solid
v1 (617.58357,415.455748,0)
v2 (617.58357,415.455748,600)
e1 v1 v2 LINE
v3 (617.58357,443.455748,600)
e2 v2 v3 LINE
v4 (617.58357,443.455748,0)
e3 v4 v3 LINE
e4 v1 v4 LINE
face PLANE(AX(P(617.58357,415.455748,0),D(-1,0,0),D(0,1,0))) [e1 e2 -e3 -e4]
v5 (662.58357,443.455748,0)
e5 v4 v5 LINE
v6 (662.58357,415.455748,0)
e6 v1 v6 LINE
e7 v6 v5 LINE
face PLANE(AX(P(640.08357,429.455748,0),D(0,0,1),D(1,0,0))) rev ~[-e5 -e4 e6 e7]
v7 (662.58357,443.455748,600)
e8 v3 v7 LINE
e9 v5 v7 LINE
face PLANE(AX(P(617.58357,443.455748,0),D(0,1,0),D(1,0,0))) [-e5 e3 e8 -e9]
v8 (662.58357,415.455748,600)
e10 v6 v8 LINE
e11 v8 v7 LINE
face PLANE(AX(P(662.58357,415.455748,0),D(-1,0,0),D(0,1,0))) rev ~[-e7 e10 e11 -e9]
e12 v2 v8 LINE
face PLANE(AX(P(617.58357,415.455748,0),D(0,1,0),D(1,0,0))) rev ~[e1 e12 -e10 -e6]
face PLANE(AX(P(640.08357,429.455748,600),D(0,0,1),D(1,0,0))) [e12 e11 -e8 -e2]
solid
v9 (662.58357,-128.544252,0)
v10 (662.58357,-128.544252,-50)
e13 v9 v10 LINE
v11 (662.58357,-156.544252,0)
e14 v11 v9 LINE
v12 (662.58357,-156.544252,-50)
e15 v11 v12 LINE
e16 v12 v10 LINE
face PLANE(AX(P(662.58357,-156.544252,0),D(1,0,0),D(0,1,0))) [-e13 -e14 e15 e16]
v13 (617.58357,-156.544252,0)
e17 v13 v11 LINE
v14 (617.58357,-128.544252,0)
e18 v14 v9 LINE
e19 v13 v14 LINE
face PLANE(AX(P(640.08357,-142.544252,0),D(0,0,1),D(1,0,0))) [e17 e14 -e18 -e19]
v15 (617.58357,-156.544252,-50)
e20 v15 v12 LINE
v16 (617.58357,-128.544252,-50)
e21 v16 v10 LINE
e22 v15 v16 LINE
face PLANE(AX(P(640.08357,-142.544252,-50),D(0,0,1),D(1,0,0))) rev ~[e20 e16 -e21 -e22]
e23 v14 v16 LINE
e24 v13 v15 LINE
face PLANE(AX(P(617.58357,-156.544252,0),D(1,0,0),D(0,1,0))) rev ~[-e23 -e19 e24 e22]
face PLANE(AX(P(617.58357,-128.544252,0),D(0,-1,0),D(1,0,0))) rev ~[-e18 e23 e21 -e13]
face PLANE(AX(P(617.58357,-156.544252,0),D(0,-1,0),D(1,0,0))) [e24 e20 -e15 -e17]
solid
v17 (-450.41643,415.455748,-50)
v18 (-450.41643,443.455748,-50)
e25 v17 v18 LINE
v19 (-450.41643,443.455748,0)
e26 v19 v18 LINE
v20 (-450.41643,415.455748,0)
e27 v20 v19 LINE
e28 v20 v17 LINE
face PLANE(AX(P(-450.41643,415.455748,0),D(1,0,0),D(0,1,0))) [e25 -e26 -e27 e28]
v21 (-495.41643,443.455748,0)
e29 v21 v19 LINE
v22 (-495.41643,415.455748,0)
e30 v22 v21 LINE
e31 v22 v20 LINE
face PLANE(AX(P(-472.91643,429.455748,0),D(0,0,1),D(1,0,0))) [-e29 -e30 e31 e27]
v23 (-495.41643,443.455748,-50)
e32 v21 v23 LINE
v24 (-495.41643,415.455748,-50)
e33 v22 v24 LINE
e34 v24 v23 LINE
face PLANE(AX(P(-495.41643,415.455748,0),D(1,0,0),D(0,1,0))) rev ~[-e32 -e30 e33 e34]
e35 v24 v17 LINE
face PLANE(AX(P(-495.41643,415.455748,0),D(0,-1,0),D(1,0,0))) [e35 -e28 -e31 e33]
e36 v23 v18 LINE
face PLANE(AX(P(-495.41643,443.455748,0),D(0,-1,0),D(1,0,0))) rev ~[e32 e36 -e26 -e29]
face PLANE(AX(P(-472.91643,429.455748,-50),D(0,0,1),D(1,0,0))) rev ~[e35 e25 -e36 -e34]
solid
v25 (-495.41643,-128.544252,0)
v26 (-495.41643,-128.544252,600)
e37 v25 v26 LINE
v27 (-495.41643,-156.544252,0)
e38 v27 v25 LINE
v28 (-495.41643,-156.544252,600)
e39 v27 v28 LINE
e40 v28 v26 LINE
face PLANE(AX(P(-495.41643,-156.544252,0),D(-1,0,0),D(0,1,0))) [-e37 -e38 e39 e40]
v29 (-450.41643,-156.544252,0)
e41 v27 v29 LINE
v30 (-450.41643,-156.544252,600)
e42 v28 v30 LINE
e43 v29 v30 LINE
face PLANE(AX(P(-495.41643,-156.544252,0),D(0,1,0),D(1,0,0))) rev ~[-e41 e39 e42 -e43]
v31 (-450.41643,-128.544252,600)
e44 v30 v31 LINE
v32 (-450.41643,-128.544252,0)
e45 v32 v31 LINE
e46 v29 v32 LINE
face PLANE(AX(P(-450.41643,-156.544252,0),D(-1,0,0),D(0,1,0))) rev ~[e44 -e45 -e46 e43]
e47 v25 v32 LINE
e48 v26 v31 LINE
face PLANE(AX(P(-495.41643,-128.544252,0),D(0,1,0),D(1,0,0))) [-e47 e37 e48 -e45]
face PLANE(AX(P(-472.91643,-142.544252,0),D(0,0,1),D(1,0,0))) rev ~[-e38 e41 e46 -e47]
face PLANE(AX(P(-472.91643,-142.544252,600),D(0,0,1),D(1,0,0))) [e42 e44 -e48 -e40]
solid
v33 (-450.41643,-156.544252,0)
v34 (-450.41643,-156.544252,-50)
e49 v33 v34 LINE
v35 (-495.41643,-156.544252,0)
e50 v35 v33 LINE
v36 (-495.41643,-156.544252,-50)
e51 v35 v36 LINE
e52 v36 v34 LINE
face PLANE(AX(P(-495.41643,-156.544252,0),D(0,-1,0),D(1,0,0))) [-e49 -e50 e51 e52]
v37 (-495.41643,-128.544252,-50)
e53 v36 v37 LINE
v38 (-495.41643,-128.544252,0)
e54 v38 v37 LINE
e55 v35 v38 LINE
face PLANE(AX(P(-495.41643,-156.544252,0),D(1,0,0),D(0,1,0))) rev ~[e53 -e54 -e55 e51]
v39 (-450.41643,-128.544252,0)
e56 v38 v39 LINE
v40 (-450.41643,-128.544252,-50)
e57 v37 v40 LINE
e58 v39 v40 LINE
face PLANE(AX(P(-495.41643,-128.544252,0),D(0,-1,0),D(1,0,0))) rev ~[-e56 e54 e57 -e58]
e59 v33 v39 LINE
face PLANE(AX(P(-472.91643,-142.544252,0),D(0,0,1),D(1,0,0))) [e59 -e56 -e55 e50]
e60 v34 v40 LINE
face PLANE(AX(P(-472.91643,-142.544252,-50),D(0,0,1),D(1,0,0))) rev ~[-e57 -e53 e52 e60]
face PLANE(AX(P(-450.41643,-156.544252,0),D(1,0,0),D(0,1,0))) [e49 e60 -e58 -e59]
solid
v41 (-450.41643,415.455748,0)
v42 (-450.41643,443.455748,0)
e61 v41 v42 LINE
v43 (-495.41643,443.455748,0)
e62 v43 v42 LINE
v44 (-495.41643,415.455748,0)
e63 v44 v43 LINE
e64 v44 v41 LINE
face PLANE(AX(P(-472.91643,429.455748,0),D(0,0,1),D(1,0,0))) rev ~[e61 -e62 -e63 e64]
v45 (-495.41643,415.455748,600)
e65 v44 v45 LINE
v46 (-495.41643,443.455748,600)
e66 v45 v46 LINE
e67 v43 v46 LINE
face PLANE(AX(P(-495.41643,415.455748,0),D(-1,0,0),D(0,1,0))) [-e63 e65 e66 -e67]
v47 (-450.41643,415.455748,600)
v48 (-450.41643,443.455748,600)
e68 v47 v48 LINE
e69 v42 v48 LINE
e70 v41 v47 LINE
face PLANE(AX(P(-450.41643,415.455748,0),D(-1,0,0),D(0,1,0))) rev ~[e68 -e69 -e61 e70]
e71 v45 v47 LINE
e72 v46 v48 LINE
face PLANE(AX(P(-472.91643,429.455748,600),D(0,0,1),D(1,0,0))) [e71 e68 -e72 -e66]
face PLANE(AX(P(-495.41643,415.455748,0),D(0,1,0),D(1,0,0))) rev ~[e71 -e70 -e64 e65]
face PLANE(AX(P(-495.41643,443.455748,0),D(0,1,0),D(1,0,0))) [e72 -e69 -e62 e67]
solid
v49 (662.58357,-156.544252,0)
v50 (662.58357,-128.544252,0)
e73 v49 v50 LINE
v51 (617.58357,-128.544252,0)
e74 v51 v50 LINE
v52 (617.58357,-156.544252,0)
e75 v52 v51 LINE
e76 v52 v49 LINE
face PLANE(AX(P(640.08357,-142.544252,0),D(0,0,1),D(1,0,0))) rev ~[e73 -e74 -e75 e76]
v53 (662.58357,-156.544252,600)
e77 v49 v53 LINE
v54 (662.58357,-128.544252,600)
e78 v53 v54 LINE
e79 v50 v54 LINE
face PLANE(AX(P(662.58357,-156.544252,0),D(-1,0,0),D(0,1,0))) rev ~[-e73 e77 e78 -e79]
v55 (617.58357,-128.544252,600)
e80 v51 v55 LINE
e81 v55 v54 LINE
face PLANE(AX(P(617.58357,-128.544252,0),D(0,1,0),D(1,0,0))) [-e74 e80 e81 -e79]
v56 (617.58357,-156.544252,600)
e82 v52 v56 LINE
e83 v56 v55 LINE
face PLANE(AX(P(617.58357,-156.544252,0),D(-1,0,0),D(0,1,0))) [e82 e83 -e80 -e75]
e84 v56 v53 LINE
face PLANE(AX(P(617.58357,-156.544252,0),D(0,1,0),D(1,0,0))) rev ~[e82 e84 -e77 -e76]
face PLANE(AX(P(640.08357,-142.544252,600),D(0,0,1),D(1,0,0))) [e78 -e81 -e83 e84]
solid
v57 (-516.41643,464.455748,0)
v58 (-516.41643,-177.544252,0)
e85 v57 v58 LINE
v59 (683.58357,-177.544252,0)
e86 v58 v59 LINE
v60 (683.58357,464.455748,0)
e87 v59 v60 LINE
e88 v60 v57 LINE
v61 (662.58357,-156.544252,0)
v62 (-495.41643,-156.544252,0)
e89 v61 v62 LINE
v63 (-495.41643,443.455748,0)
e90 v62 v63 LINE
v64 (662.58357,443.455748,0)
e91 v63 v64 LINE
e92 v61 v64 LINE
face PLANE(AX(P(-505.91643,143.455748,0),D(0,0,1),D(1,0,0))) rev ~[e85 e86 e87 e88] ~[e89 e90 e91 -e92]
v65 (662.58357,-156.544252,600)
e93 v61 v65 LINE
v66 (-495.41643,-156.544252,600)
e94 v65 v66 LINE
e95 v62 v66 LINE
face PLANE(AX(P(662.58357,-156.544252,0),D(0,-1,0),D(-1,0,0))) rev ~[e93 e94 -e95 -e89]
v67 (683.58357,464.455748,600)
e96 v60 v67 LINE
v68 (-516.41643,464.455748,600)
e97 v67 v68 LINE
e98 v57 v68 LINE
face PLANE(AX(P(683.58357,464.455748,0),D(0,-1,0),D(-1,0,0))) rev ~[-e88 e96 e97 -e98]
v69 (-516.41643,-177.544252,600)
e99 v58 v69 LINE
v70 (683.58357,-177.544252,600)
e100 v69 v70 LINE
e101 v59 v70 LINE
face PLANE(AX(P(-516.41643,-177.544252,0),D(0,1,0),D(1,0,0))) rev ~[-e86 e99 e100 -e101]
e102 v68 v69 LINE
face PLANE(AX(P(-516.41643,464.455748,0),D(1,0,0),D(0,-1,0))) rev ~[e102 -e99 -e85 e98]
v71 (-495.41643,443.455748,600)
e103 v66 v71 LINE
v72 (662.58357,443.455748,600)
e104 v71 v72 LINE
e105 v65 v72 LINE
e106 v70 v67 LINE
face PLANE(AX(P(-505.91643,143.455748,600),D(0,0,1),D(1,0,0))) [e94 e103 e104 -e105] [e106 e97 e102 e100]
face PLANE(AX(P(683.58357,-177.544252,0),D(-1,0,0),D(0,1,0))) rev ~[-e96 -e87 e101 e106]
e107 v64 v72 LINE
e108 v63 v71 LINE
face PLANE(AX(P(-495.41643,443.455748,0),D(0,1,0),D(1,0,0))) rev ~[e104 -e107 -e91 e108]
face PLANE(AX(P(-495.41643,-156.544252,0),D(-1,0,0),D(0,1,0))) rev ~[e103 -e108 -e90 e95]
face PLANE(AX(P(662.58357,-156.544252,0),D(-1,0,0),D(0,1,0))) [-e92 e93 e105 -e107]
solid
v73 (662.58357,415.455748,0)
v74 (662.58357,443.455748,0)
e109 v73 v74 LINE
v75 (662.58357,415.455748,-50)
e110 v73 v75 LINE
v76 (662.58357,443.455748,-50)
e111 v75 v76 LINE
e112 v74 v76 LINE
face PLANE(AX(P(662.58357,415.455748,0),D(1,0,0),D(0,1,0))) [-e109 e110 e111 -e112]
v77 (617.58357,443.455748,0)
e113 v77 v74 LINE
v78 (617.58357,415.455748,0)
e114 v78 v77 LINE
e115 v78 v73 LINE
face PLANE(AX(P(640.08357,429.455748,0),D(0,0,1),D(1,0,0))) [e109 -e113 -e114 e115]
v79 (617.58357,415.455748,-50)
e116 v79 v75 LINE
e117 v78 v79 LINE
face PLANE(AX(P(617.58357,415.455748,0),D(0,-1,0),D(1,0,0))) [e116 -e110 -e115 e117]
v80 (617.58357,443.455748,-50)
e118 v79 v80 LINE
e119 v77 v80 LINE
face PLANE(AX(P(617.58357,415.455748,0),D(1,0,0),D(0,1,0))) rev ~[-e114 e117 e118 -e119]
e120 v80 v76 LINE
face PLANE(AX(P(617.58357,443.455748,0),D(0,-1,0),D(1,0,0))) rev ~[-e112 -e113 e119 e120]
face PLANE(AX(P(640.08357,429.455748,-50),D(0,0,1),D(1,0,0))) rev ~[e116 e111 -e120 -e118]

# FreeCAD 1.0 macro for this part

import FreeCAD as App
import Part
import Sketcher
from FreeCAD import Vector


def add_polygon(sketch, points):
    """Adds a closed chain of lines whose ends are joined by coincident constraints."""
    first, n = sketch.GeometryCount, len(points)
    for a, b in zip(points, points[1:] + points[:1]):
        sketch.addGeometry(Part.LineSegment(App.Vector(*a, 0), App.Vector(*b, 0)), False)
    for i in range(n):
        sketch.addConstraint(Sketcher.Constraint("Coincident", first + i, 2, first + (i + 1) % n, 1))

doc = App.newDocument("Part")
body = doc.addObject("PartDesign::Body", "Body")

sketch1 = body.newObject("Sketcher::SketchObject", "Sketch")
sketch1.AttachmentSupport = (doc.getObject("XY_Plane"), [""])
sketch1.MapMode = "FlatFace"
add_polygon(sketch1, [(-516.41643, -177.544252), (683.58357, -177.544252), (683.58357, 464.455748), (-516.41643, 464.455748)])
add_polygon(sketch1, [(662.58357, -156.544252), (-495.41643, -156.544252), (-495.41643, 443.455748), (662.58357, 443.455748)])
sketch1.addConstraint(Sketcher.Constraint("Horizontal", 0))
sketch1.addConstraint(Sketcher.Constraint("Vertical", 1))
sketch1.addConstraint(Sketcher.Constraint("Horizontal", 2))
sketch1.addConstraint(Sketcher.Constraint("Vertical", 3))
sketch1.addConstraint(Sketcher.Constraint("Horizontal", 4))
sketch1.addConstraint(Sketcher.Constraint("Vertical", 5))
sketch1.addConstraint(Sketcher.Constraint("Horizontal", 6))
sketch1.addConstraint(Sketcher.Constraint("Vertical", 7))
sketch1.addConstraint(Sketcher.Constraint("DistanceX", 0, 1, 0, 2, 1200.0))
sketch1.addConstraint(Sketcher.Constraint("DistanceX", 4, 2, 4, 1, 1158.0))
sketch1.addConstraint(Sketcher.Constraint("DistanceY", 1, 1, 1, 2, 642.0))
sketch1.addConstraint(Sketcher.Constraint("DistanceY", 5, 1, 5, 2, 600.0))
sketch1.addConstraint(Sketcher.Constraint("DistanceX", 3, 2, 4, 2, 21.0))
sketch1.addConstraint(Sketcher.Constraint("DistanceY", 3, 2, 4, 2, 21.0))
sketch1.addConstraint(Sketcher.Constraint("DistanceX", -1, 1, 0, 2, 683.58357))
sketch1.addConstraint(Sketcher.Constraint("DistanceY", 0, 2, -1, 1, 177.544252))
pad1 = body.newObject("PartDesign::Pad", "Pad")
pad1.Profile = sketch1
pad1.Length = 600
body2 = doc.addObject("PartDesign::Body", "Body001")
body2.AllowCompound = True

sketch2 = body2.newObject("Sketcher::SketchObject", "Sketch001")
sketch2.AttachmentSupport = (doc.getObject("XY_Plane001"), [""])
sketch2.MapMode = "FlatFace"
add_polygon(sketch2, [(-495.41643, 443.455748), (-495.41643, 415.455748), (-450.41643, 415.455748), (-450.41643, 443.455748)])
add_polygon(sketch2, [(617.58357, 443.455748), (617.58357, 415.455748), (662.58357, 415.455748), (662.58357, 443.455748)])
add_polygon(sketch2, [(617.58357, -128.544252), (617.58357, -156.544252), (662.58357, -156.544252), (662.58357, -128.544252)])
add_polygon(sketch2, [(-495.41643, -128.544252), (-495.41643, -156.544252), (-450.41643, -156.544252), (-450.41643, -128.544252)])
sketch2.addConstraint(Sketcher.Constraint("Vertical", 0))
sketch2.addConstraint(Sketcher.Constraint("Horizontal", 1))
sketch2.addConstraint(Sketcher.Constraint("Vertical", 2))
sketch2.addConstraint(Sketcher.Constraint("Horizontal", 3))
sketch2.addConstraint(Sketcher.Constraint("Vertical", 4))
sketch2.addConstraint(Sketcher.Constraint("Horizontal", 5))
sketch2.addConstraint(Sketcher.Constraint("Vertical", 6))
sketch2.addConstraint(Sketcher.Constraint("Horizontal", 7))
sketch2.addConstraint(Sketcher.Constraint("Vertical", 8))
sketch2.addConstraint(Sketcher.Constraint("Horizontal", 9))
sketch2.addConstraint(Sketcher.Constraint("Vertical", 10))
sketch2.addConstraint(Sketcher.Constraint("Horizontal", 11))
sketch2.addConstraint(Sketcher.Constraint("Vertical", 12))
sketch2.addConstraint(Sketcher.Constraint("Horizontal", 13))
sketch2.addConstraint(Sketcher.Constraint("Vertical", 14))
sketch2.addConstraint(Sketcher.Constraint("Horizontal", 15))
sketch2.addConstraint(Sketcher.Constraint("Horizontal", 1, 2, 4, 2))
sketch2.addConstraint(Sketcher.Constraint("Horizontal", 3, 2, 6, 2))
sketch2.addConstraint(Sketcher.Constraint("Horizontal", 9, 2, 12, 2))
sketch2.addConstraint(Sketcher.Constraint("Horizontal", 11, 2, 14, 2))
sketch2.addConstraint(Sketcher.Constraint("Vertical", 7, 2, 8, 2))
sketch2.addConstraint(Sketcher.Constraint("Vertical", 6, 2, 9, 2))
sketch2.addConstraint(Sketcher.Constraint("Vertical", 3, 2, 12, 2))
sketch2.addConstraint(Sketcher.Constraint("Vertical", 2, 2, 13, 2))
sketch2.addConstraint(Sketcher.Constraint("Equal", 3, 5))
sketch2.addConstraint(Sketcher.Constraint("Equal", 6, 8))
sketch2.addConstraint(Sketcher.Constraint("DistanceX", 1, 1, 1, 2, 45.0))
sketch2.addConstraint(Sketcher.Constraint("DistanceY", 0, 2, 0, 1, 28.0))
sketch2.addConstraint(Sketcher.Constraint("DistanceX", 1, 2, 4, 2, 1068.0))
sketch2.addConstraint(Sketcher.Constraint("DistanceY", 8, 2, 4, 2, 572.0))
sketch2.addConstraint(Sketcher.Constraint("DistanceX", 0, 2, -1, 1, 495.41643))
sketch2.addConstraint(Sketcher.Constraint("DistanceY", -1, 1, 0, 2, 415.455748))
pad2 = body2.newObject("PartDesign::Pad", "Pad001")
pad2.Profile = sketch2
pad2.Length = 600
body3 = doc.addObject("PartDesign::Body", "Body002")
body3.AllowCompound = True

sketch3 = body3.newObject("Sketcher::SketchObject", "Sketch002")
sketch3.AttachmentSupport = (doc.getObject("XY_Plane002"), [""])
sketch3.MapMode = "FlatFace"
add_polygon(sketch3, [(-495.41643, 443.455748), (-495.41643, 415.455748), (-450.41643, 415.455748), (-450.41643, 443.455748)])
add_polygon(sketch3, [(617.58357, 443.455748), (617.58357, 415.455748), (662.58357, 415.455748), (662.58357, 443.455748)])
add_polygon(sketch3, [(617.58357, -128.544252), (617.58357, -156.544252), (662.58357, -156.544252), (662.58357, -128.544252)])
add_polygon(sketch3, [(-495.41643, -128.544252), (-495.41643, -156.544252), (-450.41643, -156.544252), (-450.41643, -128.544252)])
sketch3.addConstraint(Sketcher.Constraint("Vertical", 0))
sketch3.addConstraint(Sketcher.Constraint("Horizontal", 1))
sketch3.addConstraint(Sketcher.Constraint("Vertical", 2))
sketch3.addConstraint(Sketcher.Constraint("Horizontal", 3))
sketch3.addConstraint(Sketcher.Constraint("Vertical", 4))
sketch3.addConstraint(Sketcher.Constraint("Horizontal", 5))
sketch3.addConstraint(Sketcher.Constraint("Vertical", 6))
sketch3.addConstraint(Sketcher.Constraint("Horizontal", 7))
sketch3.addConstraint(Sketcher.Constraint("Vertical", 8))
sketch3.addConstraint(Sketcher.Constraint("Horizontal", 9))
sketch3.addConstraint(Sketcher.Constraint("Vertical", 10))
sketch3.addConstraint(Sketcher.Constraint("Horizontal", 11))
sketch3.addConstraint(Sketcher.Constraint("Vertical", 12))
sketch3.addConstraint(Sketcher.Constraint("Horizontal", 13))
sketch3.addConstraint(Sketcher.Constraint("Vertical", 14))
sketch3.addConstraint(Sketcher.Constraint("Horizontal", 15))
sketch3.addConstraint(Sketcher.Constraint("Horizontal", 1, 2, 4, 2))
sketch3.addConstraint(Sketcher.Constraint("Horizontal", 3, 2, 6, 2))
sketch3.addConstraint(Sketcher.Constraint("Horizontal", 9, 2, 12, 2))
sketch3.addConstraint(Sketcher.Constraint("Horizontal", 11, 2, 14, 2))
sketch3.addConstraint(Sketcher.Constraint("Vertical", 7, 2, 8, 2))
sketch3.addConstraint(Sketcher.Constraint("Vertical", 6, 2, 9, 2))
sketch3.addConstraint(Sketcher.Constraint("Vertical", 3, 2, 12, 2))
sketch3.addConstraint(Sketcher.Constraint("Vertical", 2, 2, 13, 2))
sketch3.addConstraint(Sketcher.Constraint("Equal", 3, 5))
sketch3.addConstraint(Sketcher.Constraint("Equal", 6, 8))
sketch3.addConstraint(Sketcher.Constraint("DistanceX", 1, 1, 1, 2, 45.0))
sketch3.addConstraint(Sketcher.Constraint("DistanceY", 0, 2, 0, 1, 28.0))
sketch3.addConstraint(Sketcher.Constraint("DistanceX", 1, 2, 4, 2, 1068.0))
sketch3.addConstraint(Sketcher.Constraint("DistanceY", 8, 2, 4, 2, 572.0))
sketch3.addConstraint(Sketcher.Constraint("DistanceX", 0, 2, -1, 1, 495.41643))
sketch3.addConstraint(Sketcher.Constraint("DistanceY", -1, 1, 0, 2, 415.455748))
pad3 = body3.newObject("PartDesign::Pad", "Pad002")
pad3.Profile = sketch3
pad3.Length = 50
pad3.Reversed = True

doc.recompute()
